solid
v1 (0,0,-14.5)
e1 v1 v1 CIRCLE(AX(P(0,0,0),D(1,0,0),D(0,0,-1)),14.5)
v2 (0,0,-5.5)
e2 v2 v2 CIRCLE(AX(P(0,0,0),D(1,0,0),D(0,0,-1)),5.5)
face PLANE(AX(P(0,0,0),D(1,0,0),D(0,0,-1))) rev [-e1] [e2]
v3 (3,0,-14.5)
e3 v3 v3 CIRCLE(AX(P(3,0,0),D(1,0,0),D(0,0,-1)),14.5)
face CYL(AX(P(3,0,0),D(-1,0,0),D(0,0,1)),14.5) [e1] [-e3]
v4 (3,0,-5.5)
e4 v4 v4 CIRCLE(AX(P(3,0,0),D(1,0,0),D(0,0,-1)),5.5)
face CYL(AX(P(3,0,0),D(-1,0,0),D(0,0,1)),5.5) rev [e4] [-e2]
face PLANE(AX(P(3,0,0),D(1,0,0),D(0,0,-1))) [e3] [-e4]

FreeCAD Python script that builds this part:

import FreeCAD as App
import Part
import Sketcher
from FreeCAD import Vector
Q = App.Units.Quantity

doc = App.newDocument("Part")
body = doc.addObject("PartDesign::Body", "Body")

# Sketch on YZ plane
sketch1 = doc.addObject("Sketcher::SketchObject", "Sketch")
body.addObject(sketch1)
sketch1.AttachmentSupport = (doc.YZ_Plane, [""])
sketch1.MapMode = "FlatFace"
sketch1.addGeometry([
    Part.Circle(Vector(0, 0, 0), Vector(0, 0, 1), 14.5),
    Part.Circle(Vector(0, 0, 0), Vector(0, 0, 1), 5.5),
], False)
sketch1.addConstraint([
    Sketcher.Constraint("Coincident", 0, 3, -1, 1),
    Sketcher.Constraint("Coincident", 1, 3, -1, 1),
    Sketcher.Constraint("Diameter", 0, Q("29 mm")),
    Sketcher.Constraint("Diameter", 1, Q("11 mm")),
])
pad1 = doc.addObject("PartDesign::Pad", "Pad")
body.addObject(pad1)
pad1.Profile = sketch1
pad1.Length = 3

doc.recompute()
